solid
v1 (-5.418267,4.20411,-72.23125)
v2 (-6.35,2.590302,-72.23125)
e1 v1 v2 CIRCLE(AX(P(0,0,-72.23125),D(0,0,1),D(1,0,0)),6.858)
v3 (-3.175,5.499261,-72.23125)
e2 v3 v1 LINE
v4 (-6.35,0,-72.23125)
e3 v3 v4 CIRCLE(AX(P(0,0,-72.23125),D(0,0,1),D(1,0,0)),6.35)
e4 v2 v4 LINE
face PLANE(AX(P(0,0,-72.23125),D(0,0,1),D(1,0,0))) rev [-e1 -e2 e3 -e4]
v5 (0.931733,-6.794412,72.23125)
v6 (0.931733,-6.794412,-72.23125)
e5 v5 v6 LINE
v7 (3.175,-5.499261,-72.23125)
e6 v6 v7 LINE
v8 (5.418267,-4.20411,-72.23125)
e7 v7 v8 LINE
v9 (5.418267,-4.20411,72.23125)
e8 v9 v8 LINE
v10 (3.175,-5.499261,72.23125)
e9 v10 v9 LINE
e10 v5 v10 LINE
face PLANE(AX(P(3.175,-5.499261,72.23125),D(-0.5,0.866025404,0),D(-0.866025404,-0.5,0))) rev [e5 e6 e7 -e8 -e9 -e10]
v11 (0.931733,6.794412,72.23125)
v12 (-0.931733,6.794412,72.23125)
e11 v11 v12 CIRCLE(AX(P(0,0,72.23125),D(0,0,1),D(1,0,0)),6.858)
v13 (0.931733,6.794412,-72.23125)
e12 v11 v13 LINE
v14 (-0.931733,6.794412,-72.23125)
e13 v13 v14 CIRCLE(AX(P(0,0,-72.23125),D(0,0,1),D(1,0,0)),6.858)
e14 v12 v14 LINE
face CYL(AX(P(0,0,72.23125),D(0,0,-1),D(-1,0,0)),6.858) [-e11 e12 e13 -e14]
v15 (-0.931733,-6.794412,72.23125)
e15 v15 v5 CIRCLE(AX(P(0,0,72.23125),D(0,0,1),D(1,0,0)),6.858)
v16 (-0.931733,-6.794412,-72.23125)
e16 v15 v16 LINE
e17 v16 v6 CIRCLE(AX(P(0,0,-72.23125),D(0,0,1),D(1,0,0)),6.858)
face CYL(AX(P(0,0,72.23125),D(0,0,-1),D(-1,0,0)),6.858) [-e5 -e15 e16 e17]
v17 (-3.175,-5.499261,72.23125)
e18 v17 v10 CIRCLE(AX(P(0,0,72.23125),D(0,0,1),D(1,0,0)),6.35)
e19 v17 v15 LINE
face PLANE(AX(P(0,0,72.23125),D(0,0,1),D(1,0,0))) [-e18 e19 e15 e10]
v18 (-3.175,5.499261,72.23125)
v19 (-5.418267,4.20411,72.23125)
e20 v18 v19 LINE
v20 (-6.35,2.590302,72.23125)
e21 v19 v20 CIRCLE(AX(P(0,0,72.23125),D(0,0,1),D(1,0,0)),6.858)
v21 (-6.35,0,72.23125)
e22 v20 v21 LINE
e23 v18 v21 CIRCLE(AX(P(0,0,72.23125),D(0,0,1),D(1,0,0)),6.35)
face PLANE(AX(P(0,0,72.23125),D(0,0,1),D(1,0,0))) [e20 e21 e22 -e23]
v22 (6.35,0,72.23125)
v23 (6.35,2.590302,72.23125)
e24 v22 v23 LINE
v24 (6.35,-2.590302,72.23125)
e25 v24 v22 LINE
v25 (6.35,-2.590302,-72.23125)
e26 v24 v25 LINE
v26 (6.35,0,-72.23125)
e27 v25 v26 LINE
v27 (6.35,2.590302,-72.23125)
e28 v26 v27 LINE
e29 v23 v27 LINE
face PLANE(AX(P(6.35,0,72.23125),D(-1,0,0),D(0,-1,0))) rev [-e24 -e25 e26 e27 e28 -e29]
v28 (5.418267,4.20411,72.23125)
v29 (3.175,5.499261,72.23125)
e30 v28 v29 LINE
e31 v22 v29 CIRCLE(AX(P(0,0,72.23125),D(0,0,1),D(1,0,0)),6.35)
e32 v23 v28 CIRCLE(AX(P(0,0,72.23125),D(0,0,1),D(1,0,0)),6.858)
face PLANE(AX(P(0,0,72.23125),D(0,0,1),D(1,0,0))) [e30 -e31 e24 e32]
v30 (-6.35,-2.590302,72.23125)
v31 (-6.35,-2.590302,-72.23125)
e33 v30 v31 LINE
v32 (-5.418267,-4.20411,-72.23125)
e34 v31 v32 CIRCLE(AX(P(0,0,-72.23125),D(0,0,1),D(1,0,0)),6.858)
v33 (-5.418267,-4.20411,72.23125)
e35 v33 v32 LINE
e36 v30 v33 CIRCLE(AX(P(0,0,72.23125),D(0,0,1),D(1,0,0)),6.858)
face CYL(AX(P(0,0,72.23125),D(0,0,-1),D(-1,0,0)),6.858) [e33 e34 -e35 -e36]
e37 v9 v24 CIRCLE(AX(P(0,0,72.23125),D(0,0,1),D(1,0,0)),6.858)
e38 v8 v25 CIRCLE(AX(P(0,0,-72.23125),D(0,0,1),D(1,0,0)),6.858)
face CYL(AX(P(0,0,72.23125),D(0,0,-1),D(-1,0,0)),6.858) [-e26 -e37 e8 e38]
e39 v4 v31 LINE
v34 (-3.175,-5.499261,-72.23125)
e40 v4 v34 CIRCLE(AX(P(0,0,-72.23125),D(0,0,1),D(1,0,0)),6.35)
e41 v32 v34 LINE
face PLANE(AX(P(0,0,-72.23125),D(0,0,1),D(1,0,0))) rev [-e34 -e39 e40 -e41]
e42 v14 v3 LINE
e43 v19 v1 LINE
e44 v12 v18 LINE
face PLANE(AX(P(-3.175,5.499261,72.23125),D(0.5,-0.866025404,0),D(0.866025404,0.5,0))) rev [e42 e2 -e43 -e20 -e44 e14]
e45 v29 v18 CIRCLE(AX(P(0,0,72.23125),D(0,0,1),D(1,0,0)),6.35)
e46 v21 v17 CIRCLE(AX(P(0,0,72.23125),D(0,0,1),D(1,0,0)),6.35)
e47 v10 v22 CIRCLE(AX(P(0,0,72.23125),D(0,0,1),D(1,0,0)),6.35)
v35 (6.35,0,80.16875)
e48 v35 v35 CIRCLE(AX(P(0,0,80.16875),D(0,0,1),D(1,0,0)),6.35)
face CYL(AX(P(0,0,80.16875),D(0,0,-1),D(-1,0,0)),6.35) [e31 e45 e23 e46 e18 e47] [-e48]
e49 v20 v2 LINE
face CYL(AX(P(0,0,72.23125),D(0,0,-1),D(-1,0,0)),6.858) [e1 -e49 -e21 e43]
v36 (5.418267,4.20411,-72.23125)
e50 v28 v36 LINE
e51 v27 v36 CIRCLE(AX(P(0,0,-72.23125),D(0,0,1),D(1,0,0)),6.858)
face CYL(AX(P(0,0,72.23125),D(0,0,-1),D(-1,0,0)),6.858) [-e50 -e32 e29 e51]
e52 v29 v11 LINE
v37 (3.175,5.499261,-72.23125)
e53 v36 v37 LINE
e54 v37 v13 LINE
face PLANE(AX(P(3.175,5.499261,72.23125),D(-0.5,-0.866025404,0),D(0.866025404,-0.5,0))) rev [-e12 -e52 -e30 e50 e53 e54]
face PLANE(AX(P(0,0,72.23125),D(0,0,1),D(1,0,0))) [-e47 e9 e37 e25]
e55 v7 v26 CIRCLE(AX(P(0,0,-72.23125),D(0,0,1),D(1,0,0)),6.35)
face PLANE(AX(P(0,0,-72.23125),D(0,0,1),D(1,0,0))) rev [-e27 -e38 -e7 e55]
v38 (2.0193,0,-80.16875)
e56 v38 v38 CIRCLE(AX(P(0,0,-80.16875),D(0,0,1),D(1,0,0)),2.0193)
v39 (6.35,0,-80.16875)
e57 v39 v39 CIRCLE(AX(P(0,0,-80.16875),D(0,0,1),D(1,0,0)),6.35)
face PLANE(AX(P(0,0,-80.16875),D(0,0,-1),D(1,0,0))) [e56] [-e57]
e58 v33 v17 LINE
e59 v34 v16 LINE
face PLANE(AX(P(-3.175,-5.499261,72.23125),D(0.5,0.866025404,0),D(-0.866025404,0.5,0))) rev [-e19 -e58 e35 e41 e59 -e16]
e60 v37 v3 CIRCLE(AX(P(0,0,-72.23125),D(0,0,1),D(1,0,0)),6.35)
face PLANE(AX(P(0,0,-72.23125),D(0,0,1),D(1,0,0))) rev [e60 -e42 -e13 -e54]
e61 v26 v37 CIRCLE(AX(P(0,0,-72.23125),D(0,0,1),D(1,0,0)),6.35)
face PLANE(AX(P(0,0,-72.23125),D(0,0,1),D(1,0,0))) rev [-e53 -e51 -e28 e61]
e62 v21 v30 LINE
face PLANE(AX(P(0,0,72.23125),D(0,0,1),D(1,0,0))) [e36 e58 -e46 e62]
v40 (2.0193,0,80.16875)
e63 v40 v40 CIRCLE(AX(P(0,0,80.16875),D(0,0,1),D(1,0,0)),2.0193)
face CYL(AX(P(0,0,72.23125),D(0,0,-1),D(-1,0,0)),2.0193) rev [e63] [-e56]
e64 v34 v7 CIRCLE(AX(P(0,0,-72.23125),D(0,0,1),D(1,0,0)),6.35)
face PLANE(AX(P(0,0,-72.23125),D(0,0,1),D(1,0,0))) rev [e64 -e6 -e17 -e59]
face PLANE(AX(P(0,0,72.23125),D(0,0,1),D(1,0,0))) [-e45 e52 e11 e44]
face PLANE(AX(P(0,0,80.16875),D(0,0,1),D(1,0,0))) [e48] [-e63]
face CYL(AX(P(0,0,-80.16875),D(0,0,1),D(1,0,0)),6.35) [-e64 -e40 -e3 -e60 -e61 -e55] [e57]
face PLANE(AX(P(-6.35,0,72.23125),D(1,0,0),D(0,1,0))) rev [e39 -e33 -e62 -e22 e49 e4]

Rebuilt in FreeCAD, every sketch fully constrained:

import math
import FreeCAD as App
import Part
import Sketcher
from FreeCAD import Vector
Q = App.Units.Quantity

doc = App.newDocument("Part")
body = doc.addObject("PartDesign::Body", "Body")

sketch1 = doc.addObject("Sketcher::SketchObject", "Sketch")
body.addObject(sketch1)
sketch1.AttachmentSupport = (doc.XY_Plane, [""])
sketch1.MapMode = "FlatFace"
sketch1.addGeometry(Part.ArcOfCircle(Part.Circle(Vector(0, 0, 0), Vector(0, 0, 1), 6.9), math.radians(82.19), math.radians(97.81)), False)
sketch1.addGeometry(Part.LineSegment(Vector(-0.9, 6.8, 0), Vector(-5.4, 4.2, 0)), False)
sketch1.addGeometry(Part.ArcOfCircle(Part.Circle(Vector(0, 0, 0), Vector(0, 0, 1), 6.9), math.radians(142.19), math.radians(157.81)), False)
sketch1.addGeometry(Part.LineSegment(Vector(-6.3, 2.6, 0), Vector(-6.3, -2.6, 0)), False)
sketch1.addGeometry(Part.ArcOfCircle(Part.Circle(Vector(0, 0, 0), Vector(0, 0, 1), 6.9), math.radians(-157.81), math.radians(-142.19)), False)
sketch1.addGeometry(Part.LineSegment(Vector(-5.4, -4.2, 0), Vector(-0.9, -6.8, 0)), False)
sketch1.addGeometry(Part.ArcOfCircle(Part.Circle(Vector(0, 0, 0), Vector(0, 0, 1), 6.9), math.radians(-97.81), math.radians(-82.19)), False)
sketch1.addGeometry(Part.LineSegment(Vector(0.9, -6.8, 0), Vector(5.4, -4.2, 0)), False)
sketch1.addGeometry(Part.ArcOfCircle(Part.Circle(Vector(0, 0, 0), Vector(0, 0, 1), 6.9), math.radians(-37.81), math.radians(-22.19)), False)
sketch1.addGeometry(Part.LineSegment(Vector(6.3, -2.6, 0), Vector(6.3, 2.6, 0)), False)
sketch1.addGeometry(Part.ArcOfCircle(Part.Circle(Vector(0, 0, 0), Vector(0, 0, 1), 6.9), math.radians(22.19), math.radians(37.81)), False)
sketch1.addGeometry(Part.LineSegment(Vector(5.4, 4.2, 0), Vector(0.9, 6.8, 0)), False)
sketch1.addGeometry(Part.Circle(Vector(0, 0, 0), Vector(0, 0, 1), 2), False)
sketch1.addConstraint(Sketcher.Constraint("Coincident", 0, 2, 1, 1))
sketch1.addConstraint(Sketcher.Constraint("Coincident", 1, 2, 2, 1))
sketch1.addConstraint(Sketcher.Constraint("Coincident", 2, 2, 3, 1))
sketch1.addConstraint(Sketcher.Constraint("Coincident", 3, 2, 4, 1))
sketch1.addConstraint(Sketcher.Constraint("Coincident", 4, 2, 5, 1))
sketch1.addConstraint(Sketcher.Constraint("Coincident", 5, 2, 6, 1))
sketch1.addConstraint(Sketcher.Constraint("Coincident", 6, 2, 7, 1))
sketch1.addConstraint(Sketcher.Constraint("Coincident", 7, 2, 8, 1))
sketch1.addConstraint(Sketcher.Constraint("Coincident", 8, 2, 9, 1))
sketch1.addConstraint(Sketcher.Constraint("Coincident", 9, 2, 10, 1))
sketch1.addConstraint(Sketcher.Constraint("Coincident", 10, 2, 11, 1))
sketch1.addConstraint(Sketcher.Constraint("Coincident", 11, 2, 0, 1))
sketch1.addConstraint(Sketcher.Constraint("Vertical", 3))
sketch1.addConstraint(Sketcher.Constraint("Vertical", 9))
sketch1.addConstraint(Sketcher.Constraint("Coincident", 0, 3, -1, 1))
sketch1.addConstraint(Sketcher.Constraint("Coincident", 2, 3, -1, 1))
sketch1.addConstraint(Sketcher.Constraint("Coincident", 4, 3, -1, 1))
sketch1.addConstraint(Sketcher.Constraint("Coincident", 6, 3, -1, 1))
sketch1.addConstraint(Sketcher.Constraint("Coincident", 8, 3, -1, 1))
sketch1.addConstraint(Sketcher.Constraint("Coincident", 10, 3, -1, 1))
sketch1.addConstraint(Sketcher.Constraint("Coincident", 12, 3, -1, 1))
sketch1.addConstraint(Sketcher.Constraint("Equal", 0, 2))
sketch1.addConstraint(Sketcher.Constraint("Equal", 2, 4))
sketch1.addConstraint(Sketcher.Constraint("Equal", 4, 6))
sketch1.addConstraint(Sketcher.Constraint("Equal", 6, 8))
sketch1.addConstraint(Sketcher.Constraint("Equal", 8, 10))
sketch1.addConstraint(Sketcher.Constraint("Parallel", 1, 7))
sketch1.addConstraint(Sketcher.Constraint("Parallel", 5, 11))
sketch1.addConstraint(Sketcher.Constraint("Horizontal", 5, 2, 6, 2))
sketch1.addConstraint(Sketcher.Constraint("Horizontal", 4, 2, 7, 2))
sketch1.addConstraint(Sketcher.Constraint("Horizontal", 3, 2, 8, 2))
sketch1.addConstraint(Sketcher.Constraint("Horizontal", 1, 2, 10, 2))
sketch1.addConstraint(Sketcher.Constraint("Vertical", 1, 2, 4, 2))
sketch1.addConstraint(Sketcher.Constraint("Radius", 0, Q("0.27 in")))
sketch1.addConstraint(Sketcher.Constraint("Diameter", 12, Q("0.159 in")))
sketch1.addConstraint(Sketcher.Constraint("Angle", 1, Q("-150 deg")))
sketch1.addConstraint(Sketcher.Constraint("DistanceX", 2, 2, -1, 1, Q("0.25 in")))
sketch1.addConstraint(Sketcher.Constraint("DistanceX", 4, 2, 6, 2, Q("0.25 in")))
pad1 = doc.addObject("PartDesign::Pad", "Pad")
body.addObject(pad1)
pad1.Profile = sketch1
pad1.Length = Q("5.6875 in")
pad1.Midplane = True

sketch2 = doc.addObject("Sketcher::SketchObject", "Sketch001")
body.addObject(sketch2)
sketch2.AttachmentSupport = (doc.XY_Plane, [""])
sketch2.MapMode = "FlatFace"
sketch2.AttachmentOffset = App.Placement(Vector(0, 0, 2.84375 * 25.4), App.Rotation())
sketch2.addGeometry(Part.Circle(Vector(0, 0, 0), Vector(0, 0, 1), 6.3), False)
sketch2.addGeometry(Part.Circle(Vector(0, 0, 0), Vector(0, 0, 1), 2), False)
sketch2.addConstraint(Sketcher.Constraint("Coincident", 0, 3, -1, 1))
sketch2.addConstraint(Sketcher.Constraint("Coincident", 1, 3, -1, 1))
sketch2.addConstraint(Sketcher.Constraint("Diameter", 0, Q("0.5 in")))
sketch2.addConstraint(Sketcher.Constraint("Diameter", 1, Q("0.159 in")))
pad2 = doc.addObject("PartDesign::Pad", "Pad001")
body.addObject(pad2)
pad2.Profile = sketch2
pad2.Length = Q("0.3125 in")
doc.recompute()

mirrored = doc.addObject("PartDesign::Mirrored", "Mirrored")
body.addObject(mirrored)
mirrored.Originals = [pad2]
mirrored.MirrorPlane = (doc.XY_Plane, [""])
body.Tip = mirrored

doc.recompute()
